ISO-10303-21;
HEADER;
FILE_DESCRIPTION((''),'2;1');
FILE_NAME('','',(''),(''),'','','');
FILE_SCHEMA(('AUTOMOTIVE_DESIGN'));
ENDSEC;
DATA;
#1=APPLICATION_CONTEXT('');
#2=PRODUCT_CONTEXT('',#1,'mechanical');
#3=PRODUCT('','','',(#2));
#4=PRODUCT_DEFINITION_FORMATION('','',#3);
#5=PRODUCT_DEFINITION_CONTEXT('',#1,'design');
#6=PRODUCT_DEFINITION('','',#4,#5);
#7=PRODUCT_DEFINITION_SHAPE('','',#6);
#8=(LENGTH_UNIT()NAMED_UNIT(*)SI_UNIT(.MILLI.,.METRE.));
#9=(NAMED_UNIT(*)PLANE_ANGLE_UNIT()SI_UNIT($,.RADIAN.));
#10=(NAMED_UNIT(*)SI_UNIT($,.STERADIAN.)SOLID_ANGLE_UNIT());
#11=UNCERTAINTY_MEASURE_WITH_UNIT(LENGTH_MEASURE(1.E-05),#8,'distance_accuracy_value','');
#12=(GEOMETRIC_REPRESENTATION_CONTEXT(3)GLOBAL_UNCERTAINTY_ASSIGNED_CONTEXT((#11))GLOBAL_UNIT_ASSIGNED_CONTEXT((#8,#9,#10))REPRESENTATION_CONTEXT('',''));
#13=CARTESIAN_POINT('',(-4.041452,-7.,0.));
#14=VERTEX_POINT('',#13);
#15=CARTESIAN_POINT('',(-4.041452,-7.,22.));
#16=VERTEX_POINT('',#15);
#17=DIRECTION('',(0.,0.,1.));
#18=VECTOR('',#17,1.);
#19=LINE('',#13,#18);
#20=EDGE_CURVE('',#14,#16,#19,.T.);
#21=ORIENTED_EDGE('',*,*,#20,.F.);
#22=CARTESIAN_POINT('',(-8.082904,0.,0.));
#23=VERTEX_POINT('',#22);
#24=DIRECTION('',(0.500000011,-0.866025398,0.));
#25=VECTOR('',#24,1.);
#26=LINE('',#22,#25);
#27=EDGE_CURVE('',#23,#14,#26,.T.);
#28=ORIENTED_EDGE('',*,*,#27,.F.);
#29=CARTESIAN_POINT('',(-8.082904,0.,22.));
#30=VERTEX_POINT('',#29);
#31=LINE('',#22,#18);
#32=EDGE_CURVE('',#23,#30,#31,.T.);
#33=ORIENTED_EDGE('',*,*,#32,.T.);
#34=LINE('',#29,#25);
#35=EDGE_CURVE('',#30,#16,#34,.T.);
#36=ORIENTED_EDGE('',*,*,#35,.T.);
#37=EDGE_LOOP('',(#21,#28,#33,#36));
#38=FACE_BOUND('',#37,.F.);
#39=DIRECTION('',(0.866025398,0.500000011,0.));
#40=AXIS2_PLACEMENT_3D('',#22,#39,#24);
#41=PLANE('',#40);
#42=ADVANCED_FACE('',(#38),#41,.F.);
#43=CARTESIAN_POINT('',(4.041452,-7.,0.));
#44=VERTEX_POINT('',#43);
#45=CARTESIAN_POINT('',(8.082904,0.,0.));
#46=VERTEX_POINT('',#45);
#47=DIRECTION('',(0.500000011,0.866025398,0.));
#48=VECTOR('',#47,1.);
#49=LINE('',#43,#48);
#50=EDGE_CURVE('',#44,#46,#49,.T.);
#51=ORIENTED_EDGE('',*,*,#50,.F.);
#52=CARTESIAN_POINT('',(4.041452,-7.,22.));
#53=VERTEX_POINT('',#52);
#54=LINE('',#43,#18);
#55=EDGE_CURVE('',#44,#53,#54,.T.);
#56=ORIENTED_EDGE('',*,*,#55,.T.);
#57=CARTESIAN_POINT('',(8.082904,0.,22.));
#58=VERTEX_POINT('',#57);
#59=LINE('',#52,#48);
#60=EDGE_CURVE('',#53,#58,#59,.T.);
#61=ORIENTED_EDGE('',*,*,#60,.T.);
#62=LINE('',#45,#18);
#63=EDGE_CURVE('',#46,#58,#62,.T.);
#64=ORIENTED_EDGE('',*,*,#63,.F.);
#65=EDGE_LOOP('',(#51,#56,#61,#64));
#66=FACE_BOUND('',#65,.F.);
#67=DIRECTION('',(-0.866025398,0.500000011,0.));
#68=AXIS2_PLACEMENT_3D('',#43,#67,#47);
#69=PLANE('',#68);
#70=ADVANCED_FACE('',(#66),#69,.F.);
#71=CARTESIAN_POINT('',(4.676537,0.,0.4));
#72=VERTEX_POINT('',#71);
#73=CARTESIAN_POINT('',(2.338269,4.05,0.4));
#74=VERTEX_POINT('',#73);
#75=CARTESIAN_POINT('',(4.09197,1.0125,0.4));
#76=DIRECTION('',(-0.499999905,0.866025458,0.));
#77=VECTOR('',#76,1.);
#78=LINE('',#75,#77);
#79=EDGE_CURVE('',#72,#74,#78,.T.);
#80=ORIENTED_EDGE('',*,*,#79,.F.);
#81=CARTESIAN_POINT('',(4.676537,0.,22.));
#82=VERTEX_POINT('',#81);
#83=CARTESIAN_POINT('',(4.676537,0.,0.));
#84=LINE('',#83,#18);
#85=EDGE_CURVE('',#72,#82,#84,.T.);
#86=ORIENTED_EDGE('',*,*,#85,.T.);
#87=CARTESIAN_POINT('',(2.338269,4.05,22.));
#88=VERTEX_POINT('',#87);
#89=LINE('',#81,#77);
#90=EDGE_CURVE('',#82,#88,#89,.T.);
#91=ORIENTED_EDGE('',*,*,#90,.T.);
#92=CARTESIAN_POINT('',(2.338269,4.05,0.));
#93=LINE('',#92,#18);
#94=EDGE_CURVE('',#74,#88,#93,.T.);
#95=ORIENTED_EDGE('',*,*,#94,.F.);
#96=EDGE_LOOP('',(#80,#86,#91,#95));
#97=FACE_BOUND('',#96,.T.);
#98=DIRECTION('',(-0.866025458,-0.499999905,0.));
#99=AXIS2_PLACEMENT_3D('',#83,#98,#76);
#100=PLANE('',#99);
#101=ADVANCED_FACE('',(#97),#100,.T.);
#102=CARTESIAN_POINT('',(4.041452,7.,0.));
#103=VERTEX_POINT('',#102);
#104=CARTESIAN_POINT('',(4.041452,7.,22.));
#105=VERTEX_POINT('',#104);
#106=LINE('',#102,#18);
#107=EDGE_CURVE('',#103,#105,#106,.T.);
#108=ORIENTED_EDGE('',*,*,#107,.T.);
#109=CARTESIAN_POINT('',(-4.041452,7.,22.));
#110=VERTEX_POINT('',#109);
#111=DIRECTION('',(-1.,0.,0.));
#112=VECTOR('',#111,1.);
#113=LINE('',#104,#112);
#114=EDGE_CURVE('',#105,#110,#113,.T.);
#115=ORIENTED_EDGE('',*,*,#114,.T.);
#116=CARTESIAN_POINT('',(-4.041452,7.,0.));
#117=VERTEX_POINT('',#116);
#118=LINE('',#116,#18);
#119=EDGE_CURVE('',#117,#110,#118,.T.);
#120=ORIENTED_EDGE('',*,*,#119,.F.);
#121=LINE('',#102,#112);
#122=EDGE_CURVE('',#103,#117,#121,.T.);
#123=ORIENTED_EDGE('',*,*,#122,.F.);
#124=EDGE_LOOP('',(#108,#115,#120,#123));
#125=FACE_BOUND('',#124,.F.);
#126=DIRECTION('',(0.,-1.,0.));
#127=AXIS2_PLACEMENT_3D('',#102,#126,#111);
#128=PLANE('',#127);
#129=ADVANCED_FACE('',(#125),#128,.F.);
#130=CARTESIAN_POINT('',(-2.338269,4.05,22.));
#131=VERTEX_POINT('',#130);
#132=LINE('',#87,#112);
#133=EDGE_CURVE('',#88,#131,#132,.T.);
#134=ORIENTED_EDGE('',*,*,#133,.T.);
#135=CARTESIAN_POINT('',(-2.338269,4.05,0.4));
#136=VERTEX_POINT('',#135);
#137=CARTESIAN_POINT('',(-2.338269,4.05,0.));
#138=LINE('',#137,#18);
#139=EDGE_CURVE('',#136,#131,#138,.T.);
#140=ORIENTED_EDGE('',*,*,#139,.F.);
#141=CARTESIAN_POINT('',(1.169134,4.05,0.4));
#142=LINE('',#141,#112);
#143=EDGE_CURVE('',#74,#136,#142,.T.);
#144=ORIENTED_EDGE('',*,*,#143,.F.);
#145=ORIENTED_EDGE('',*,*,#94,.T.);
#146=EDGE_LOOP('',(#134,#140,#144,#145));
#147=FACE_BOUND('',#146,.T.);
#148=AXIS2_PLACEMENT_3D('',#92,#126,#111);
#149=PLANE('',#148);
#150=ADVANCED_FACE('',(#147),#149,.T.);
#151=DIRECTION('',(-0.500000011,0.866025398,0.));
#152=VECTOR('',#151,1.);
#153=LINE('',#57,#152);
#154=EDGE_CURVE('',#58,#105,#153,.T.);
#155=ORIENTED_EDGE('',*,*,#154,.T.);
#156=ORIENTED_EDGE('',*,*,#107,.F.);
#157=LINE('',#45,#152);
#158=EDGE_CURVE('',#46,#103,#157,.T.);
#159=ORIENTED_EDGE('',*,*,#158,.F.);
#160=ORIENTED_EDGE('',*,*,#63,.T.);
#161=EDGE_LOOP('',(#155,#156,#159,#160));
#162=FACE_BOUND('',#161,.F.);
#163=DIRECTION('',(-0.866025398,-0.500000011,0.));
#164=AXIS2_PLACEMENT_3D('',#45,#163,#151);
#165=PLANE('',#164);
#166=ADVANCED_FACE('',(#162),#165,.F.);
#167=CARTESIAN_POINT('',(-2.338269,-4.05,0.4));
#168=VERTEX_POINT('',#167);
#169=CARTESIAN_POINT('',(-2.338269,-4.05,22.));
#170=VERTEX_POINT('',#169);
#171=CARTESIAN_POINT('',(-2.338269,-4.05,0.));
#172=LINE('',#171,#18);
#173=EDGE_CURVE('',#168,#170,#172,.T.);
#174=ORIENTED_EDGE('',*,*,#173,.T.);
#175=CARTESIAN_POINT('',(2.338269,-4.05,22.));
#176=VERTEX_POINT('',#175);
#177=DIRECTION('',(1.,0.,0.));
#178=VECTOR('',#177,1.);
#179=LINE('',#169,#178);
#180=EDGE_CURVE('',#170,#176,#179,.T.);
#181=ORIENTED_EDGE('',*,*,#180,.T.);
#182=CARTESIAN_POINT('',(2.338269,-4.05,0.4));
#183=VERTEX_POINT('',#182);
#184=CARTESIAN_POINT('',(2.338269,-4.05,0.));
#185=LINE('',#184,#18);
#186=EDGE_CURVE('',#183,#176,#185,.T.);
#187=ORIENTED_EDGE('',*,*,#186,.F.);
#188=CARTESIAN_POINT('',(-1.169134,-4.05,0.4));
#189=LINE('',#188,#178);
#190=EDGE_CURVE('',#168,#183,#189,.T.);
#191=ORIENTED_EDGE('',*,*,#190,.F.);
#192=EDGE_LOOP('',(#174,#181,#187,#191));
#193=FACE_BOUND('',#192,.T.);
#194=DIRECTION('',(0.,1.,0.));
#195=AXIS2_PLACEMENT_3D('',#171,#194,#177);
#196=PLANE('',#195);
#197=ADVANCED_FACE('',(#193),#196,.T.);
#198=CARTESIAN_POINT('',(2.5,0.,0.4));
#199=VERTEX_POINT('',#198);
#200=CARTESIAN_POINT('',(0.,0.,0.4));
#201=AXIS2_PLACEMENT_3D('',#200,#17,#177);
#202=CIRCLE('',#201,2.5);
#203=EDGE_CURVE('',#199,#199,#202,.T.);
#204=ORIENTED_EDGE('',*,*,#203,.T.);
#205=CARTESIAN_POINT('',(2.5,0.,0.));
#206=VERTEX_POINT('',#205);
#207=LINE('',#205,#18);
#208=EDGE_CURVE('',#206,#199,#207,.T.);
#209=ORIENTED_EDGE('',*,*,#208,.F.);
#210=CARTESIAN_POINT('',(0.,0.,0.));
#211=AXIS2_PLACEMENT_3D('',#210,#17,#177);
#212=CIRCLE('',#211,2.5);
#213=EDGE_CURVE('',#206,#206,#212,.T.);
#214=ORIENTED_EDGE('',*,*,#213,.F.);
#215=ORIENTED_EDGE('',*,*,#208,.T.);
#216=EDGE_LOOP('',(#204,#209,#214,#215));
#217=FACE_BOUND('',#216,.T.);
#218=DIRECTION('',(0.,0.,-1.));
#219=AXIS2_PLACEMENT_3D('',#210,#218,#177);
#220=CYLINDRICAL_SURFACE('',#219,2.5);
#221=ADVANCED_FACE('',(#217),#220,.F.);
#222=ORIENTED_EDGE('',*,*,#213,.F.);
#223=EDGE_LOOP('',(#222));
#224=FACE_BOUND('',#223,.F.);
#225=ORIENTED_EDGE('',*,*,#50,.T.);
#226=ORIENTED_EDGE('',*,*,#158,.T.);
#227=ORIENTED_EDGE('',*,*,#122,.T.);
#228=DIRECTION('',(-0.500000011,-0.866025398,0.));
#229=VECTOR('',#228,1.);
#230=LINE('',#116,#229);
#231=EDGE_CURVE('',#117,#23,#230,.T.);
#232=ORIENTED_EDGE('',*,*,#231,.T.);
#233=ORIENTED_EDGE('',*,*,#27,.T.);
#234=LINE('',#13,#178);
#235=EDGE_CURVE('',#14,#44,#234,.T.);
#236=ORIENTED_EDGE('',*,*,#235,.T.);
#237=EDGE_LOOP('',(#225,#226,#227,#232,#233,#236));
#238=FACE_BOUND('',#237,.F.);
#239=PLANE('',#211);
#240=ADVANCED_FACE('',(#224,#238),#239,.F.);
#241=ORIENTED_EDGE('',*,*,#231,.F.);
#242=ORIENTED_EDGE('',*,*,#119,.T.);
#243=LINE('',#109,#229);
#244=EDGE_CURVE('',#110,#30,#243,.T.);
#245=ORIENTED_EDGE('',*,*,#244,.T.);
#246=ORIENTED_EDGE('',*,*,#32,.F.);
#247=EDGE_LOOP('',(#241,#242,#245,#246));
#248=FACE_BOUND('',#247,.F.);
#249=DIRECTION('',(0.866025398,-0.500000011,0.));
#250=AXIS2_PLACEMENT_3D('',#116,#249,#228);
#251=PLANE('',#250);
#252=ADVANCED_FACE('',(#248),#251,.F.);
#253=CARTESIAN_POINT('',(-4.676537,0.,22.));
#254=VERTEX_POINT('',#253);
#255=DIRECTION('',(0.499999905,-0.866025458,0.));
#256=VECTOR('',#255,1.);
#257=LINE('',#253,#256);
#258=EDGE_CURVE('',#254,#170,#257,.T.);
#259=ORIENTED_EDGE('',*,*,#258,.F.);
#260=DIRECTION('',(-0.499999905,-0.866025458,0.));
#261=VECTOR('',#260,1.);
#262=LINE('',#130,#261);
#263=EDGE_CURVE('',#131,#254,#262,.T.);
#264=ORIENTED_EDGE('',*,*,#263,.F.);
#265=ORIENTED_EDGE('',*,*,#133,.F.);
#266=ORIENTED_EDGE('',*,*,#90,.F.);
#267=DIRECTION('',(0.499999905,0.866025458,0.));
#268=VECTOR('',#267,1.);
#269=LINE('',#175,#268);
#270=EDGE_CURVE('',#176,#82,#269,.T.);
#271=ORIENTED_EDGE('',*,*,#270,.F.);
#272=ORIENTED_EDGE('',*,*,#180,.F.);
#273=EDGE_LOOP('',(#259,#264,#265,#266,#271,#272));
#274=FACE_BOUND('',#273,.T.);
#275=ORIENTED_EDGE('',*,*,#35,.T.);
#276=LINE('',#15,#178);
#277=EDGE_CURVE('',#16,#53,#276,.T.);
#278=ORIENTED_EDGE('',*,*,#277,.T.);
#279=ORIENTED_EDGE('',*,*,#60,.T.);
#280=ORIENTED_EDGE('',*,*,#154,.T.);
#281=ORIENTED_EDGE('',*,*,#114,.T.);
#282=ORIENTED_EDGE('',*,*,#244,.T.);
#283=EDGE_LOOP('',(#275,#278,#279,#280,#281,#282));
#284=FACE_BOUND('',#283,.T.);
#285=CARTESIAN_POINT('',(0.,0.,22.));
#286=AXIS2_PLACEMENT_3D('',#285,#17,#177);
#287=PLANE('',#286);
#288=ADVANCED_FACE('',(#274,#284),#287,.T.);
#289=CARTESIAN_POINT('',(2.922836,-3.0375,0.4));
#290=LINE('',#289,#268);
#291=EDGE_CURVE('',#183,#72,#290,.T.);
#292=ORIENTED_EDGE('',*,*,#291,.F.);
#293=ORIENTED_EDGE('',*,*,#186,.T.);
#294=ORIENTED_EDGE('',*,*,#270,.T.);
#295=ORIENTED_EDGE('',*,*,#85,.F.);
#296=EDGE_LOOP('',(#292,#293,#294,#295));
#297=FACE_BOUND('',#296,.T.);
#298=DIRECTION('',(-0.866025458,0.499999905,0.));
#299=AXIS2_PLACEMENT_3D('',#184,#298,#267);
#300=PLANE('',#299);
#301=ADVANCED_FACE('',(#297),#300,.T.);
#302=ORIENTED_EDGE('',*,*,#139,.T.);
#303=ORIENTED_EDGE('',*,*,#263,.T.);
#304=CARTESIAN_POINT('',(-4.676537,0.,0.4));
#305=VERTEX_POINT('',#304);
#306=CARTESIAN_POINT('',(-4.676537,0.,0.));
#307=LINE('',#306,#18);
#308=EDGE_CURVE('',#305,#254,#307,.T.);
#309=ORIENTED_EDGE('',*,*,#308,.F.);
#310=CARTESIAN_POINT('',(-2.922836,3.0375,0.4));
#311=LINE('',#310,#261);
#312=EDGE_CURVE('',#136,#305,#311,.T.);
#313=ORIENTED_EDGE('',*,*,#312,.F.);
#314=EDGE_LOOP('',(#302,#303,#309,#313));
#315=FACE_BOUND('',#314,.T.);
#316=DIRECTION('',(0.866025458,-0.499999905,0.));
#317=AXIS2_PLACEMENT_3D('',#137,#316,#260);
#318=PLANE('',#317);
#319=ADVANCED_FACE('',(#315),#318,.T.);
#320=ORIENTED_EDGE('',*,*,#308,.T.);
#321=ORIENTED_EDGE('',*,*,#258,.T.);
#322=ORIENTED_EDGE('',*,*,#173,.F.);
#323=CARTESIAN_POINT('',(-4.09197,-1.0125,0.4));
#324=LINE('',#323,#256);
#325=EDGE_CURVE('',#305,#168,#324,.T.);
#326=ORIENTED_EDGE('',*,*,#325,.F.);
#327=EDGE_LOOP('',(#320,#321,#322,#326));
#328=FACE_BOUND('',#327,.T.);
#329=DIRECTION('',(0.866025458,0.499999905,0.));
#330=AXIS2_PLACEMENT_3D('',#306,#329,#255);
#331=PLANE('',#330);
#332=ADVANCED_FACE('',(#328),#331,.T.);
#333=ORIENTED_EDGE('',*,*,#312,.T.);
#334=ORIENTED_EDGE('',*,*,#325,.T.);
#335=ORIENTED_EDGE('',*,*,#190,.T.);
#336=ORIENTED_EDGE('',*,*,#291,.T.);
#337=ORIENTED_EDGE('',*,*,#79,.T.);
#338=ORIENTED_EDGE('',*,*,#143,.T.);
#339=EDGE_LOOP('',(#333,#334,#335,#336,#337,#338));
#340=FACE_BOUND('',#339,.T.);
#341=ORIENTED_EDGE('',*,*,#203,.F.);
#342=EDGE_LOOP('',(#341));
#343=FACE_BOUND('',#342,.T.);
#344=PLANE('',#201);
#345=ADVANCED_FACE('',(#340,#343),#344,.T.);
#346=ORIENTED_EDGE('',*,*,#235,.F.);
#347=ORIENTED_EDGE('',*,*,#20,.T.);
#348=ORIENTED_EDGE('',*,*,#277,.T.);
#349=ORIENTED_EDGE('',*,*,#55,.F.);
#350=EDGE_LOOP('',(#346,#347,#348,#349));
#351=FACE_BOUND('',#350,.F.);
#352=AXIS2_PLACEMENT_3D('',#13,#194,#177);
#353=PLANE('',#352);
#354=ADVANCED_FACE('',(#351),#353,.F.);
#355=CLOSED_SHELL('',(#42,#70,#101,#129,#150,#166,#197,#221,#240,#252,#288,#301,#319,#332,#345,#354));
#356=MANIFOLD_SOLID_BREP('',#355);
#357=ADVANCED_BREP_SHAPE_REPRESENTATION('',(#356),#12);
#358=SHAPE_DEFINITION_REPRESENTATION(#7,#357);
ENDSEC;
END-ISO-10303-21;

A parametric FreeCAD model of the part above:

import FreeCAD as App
import Part
import Sketcher
from FreeCAD import Vector
Q = App.Units.Quantity

doc = App.newDocument("Part")
body = doc.addObject("PartDesign::Body", "Body")

sketch1 = doc.addObject("Sketcher::SketchObject", "Sketch")
body.addObject(sketch1)
sketch1.AttachmentSupport = (doc.XY_Plane, [""])
sketch1.MapMode = "FlatFace"
sketch1.addGeometry(Part.LineSegment(Vector(4.041452, -7, 0), Vector(8.082904, 0, 0)), False)
sketch1.addGeometry(Part.LineSegment(Vector(8.082904, 0, 0), Vector(4.041452, 7, 0)), False)
sketch1.addGeometry(Part.LineSegment(Vector(4.041452, 7, 0), Vector(-4.041452, 7, 0)), False)
sketch1.addGeometry(Part.LineSegment(Vector(-4.041452, 7, 0), Vector(-8.082904, 0, 0)), False)
sketch1.addGeometry(Part.LineSegment(Vector(-8.082904, 0, 0), Vector(-4.041452, -7, 0)), False)
sketch1.addGeometry(Part.LineSegment(Vector(-4.041452, -7, 0), Vector(4.041452, -7, 0)), False)
sketch1.addGeometry(Part.LineSegment(Vector(2.338269, 4.05, 0), Vector(4.676537, 0, 0)), False)
sketch1.addGeometry(Part.LineSegment(Vector(4.676537, 0, 0), Vector(2.338269, -4.05, 0)), False)
sketch1.addGeometry(Part.LineSegment(Vector(2.338269, -4.05, 0), Vector(-2.338269, -4.05, 0)), False)
sketch1.addGeometry(Part.LineSegment(Vector(-2.338269, -4.05, 0), Vector(-4.676537, 0, 0)), False)
sketch1.addGeometry(Part.LineSegment(Vector(-4.676537, 0, 0), Vector(-2.338269, 4.05, 0)), False)
sketch1.addGeometry(Part.LineSegment(Vector(-2.338269, 4.05, 0), Vector(2.338269, 4.05, 0)), False)
sketch1.addConstraint(Sketcher.Constraint("Coincident", 0, 2, 1, 1))
sketch1.addConstraint(Sketcher.Constraint("Coincident", 1, 2, 2, 1))
sketch1.addConstraint(Sketcher.Constraint("Coincident", 2, 2, 3, 1))
sketch1.addConstraint(Sketcher.Constraint("Coincident", 3, 2, 4, 1))
sketch1.addConstraint(Sketcher.Constraint("Coincident", 4, 2, 5, 1))
sketch1.addConstraint(Sketcher.Constraint("Coincident", 5, 2, 0, 1))
sketch1.addConstraint(Sketcher.Constraint("Coincident", 6, 2, 7, 1))
sketch1.addConstraint(Sketcher.Constraint("Coincident", 7, 2, 8, 1))
sketch1.addConstraint(Sketcher.Constraint("Coincident", 8, 2, 9, 1))
sketch1.addConstraint(Sketcher.Constraint("Coincident", 9, 2, 10, 1))
sketch1.addConstraint(Sketcher.Constraint("Coincident", 10, 2, 11, 1))
sketch1.addConstraint(Sketcher.Constraint("Coincident", 11, 2, 6, 1))
sketch1.addConstraint(Sketcher.Constraint("Horizontal", 2))
sketch1.addConstraint(Sketcher.Constraint("Horizontal", 5))
sketch1.addConstraint(Sketcher.Constraint("Horizontal", 8))
sketch1.addConstraint(Sketcher.Constraint("Horizontal", 11))
sketch1.addConstraint(Sketcher.Constraint("Symmetric", 0, 2, 3, 2, -1, 1))
sketch1.addConstraint(Sketcher.Constraint("Symmetric", 1, 2, 4, 2, -1, 1))
sketch1.addConstraint(Sketcher.Constraint("Symmetric", 6, 2, 9, 2, -1, 1))
sketch1.addConstraint(Sketcher.Constraint("Symmetric", 7, 2, 10, 2, -1, 1))
sketch1.addConstraint(Sketcher.Constraint("PointOnObject", 0, 2, -1))
sketch1.addConstraint(Sketcher.Constraint("PointOnObject", 6, 2, -1))
sketch1.addConstraint(Sketcher.Constraint("Parallel", 0, 3))
sketch1.addConstraint(Sketcher.Constraint("Parallel", 4, 6))
sketch1.addConstraint(Sketcher.Constraint("Parallel", 3, 7))
sketch1.addConstraint(Sketcher.Constraint("Parallel", 6, 9))
sketch1.addConstraint(Sketcher.Constraint("Vertical", 2, 2, 4, 2))
sketch1.addConstraint(Sketcher.Constraint("Angle", 0, Q("59.999999 deg")))
sketch1.addConstraint(Sketcher.Constraint("DistanceY", -1, 1, 1, 2, Q("7 mm")))
sketch1.addConstraint(Sketcher.Constraint("DistanceY", 8, 2, 10, 2, Q("8.1 mm")))
sketch1.addConstraint(Sketcher.Constraint("DistanceX", 2, 2, 2, 1, Q("8.082904 mm")))
sketch1.addConstraint(Sketcher.Constraint("DistanceX", 8, 2, 8, 1, Q("4.676538 mm")))
pad1 = doc.addObject("PartDesign::Pad", "Pad")
body.addObject(pad1)
pad1.Profile = sketch1
pad1.Length = 22

sketch2 = doc.addObject("Sketcher::SketchObject", "Sketch001")
body.addObject(sketch2)
sketch2.AttachmentSupport = (doc.XY_Plane, [""])
sketch2.MapMode = "FlatFace"
sketch2.addGeometry(Part.Circle(Vector(0, 0, 0), Vector(0, 0, 1), 5), False)
sketch2.addGeometry(Part.Circle(Vector(0, 0, 0), Vector(0, 0, 1), 2.5), False)
sketch2.addConstraint(Sketcher.Constraint("Coincident", 0, 3, -1, 1))
sketch2.addConstraint(Sketcher.Constraint("Coincident", 1, 3, -1, 1))
sketch2.addConstraint(Sketcher.Constraint("Diameter", 0, Q("10 mm")))
sketch2.addConstraint(Sketcher.Constraint("Diameter", 1, Q("5 mm")))
pad2 = doc.addObject("PartDesign::Pad", "Pad001")
body.addObject(pad2)
pad2.Profile = sketch2
pad2.Length = 0.4

doc.recompute()
